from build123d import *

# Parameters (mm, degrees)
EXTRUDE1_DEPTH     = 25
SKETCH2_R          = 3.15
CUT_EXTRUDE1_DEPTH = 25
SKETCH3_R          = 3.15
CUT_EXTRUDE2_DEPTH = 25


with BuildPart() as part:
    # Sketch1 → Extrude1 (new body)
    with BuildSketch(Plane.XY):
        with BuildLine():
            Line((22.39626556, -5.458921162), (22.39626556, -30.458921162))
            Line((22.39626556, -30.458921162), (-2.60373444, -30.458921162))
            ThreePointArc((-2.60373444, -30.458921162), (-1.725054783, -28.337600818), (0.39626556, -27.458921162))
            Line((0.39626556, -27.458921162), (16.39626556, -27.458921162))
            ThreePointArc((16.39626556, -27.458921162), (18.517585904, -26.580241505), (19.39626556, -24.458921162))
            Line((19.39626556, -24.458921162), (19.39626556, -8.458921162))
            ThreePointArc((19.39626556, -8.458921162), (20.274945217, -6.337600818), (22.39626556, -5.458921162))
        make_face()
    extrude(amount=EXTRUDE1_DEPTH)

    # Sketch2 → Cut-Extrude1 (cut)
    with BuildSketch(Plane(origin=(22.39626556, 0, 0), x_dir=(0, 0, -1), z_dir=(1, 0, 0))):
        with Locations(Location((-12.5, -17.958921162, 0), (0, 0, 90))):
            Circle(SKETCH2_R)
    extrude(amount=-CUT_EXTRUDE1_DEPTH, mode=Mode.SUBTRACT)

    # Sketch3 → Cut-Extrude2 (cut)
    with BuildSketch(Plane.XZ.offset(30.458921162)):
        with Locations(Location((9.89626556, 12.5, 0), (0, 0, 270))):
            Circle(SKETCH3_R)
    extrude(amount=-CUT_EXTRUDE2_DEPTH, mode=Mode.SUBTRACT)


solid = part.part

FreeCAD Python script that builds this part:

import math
import FreeCAD as App
import Part
import Sketcher
from FreeCAD import Vector

doc = App.newDocument("Part")
params = doc.addObject("Spreadsheet::Sheet", "Params")
for row, (alias, value) in enumerate([
    ("sketch1_radius", "3 mm"),
    ("sketch1_width", "16 mm"),
    ("pad1_length", "25 mm"),
    ("sketch2_diameter", "6.3 mm"),
    ("pocket1_length", "25 mm"),
    ("sketch3_diameter", "6.3 mm"),
    ("pocket2_length", "25 mm"),
], start=1):
    params.set(f"A{row}", alias)
    params.set(f"B{row}", "=" + value)
    params.setAlias(f"B{row}", alias)

body = doc.addObject("PartDesign::Body", "Body")

# Sketch on XY plane
sketch1 = body.newObject("Sketcher::SketchObject", "Sketch")
sketch1.AttachmentSupport = (doc.getObject("XY_Plane"), [""])
sketch1.MapMode = "FlatFace"
sketch1.addGeometry([
    Part.LineSegment(Vector(22.396266, -30.458921, 0), Vector(22.396266, -5.458921, 0)),  # 0
    Part.ArcOfCircle(Part.Circle(Vector(22.396266, -8.458921, 0), Vector(0, 0, 1), 3), math.radians(90), math.radians(180)),  # 1
    Part.LineSegment(Vector(19.396266, -8.458921, 0), Vector(19.396266, -24.458921, 0)),  # 2
    Part.ArcOfCircle(Part.Circle(Vector(16.396266, -24.458921, 0), Vector(0, 0, 1), 3), math.radians(-90), math.radians(0)),  # 3
    Part.LineSegment(Vector(16.396266, -27.458921, 0), Vector(0.396266, -27.458921, 0)),  # 4
    Part.ArcOfCircle(Part.Circle(Vector(0.396266, -30.458921, 0), Vector(0, 0, 1), 3), math.radians(90), math.radians(180)),  # 5
    Part.LineSegment(Vector(-2.603734, -30.458921, 0), Vector(22.396266, -30.458921, 0)),  # 6
], False)
sketch1.addConstraint([
    Sketcher.Constraint("Coincident", 0, 2, 1, 1),
    Sketcher.Constraint("Tangent", 1, 2, 2, 1),
    Sketcher.Constraint("Tangent", 2, 2, 3, 2),
    Sketcher.Constraint("Tangent", 3, 1, 4, 1),
    Sketcher.Constraint("Tangent", 4, 2, 5, 1),
    Sketcher.Constraint("Coincident", 5, 2, 6, 1),
    Sketcher.Constraint("Coincident", 6, 2, 0, 1),
    Sketcher.Constraint("Vertical", 0),
    Sketcher.Constraint("Vertical", 2),
    Sketcher.Constraint("Horizontal", 4),
    Sketcher.Constraint("Horizontal", 6),
    Sketcher.Constraint("Equal", 1, 3),
    Sketcher.Constraint("Equal", 3, 5),
    Sketcher.Constraint("Vertical", 1, 3, 0, 2),
    Sketcher.Constraint("Equal", 6, 0),
    Sketcher.Constraint("Equal", 4, 2),
    Sketcher.Constraint("Radius", 1, 3.0),
    Sketcher.Constraint("DistanceX", 4, 2, 4, 1, 16.0),
    Sketcher.Constraint("DistanceY", 1, 3, -1, 1, 8.458921),
    Sketcher.Constraint("DistanceX", -1, 1, 1, 3, 22.396266),
])
sketch1.setExpression("Constraints[16]", "Params.sketch1_radius")
sketch1.setExpression("Constraints[17]", "Params.sketch1_width")
pad1 = body.newObject("PartDesign::Pad", "Pad")
pad1.Profile = sketch1
pad1.setExpression("Length", "Params.pad1_length")

# Sketch on YZ plane
sketch2 = body.newObject("Sketcher::SketchObject", "Sketch001")
sketch2.AttachmentSupport = (doc.getObject("YZ_Plane"), [""])
sketch2.MapMode = "FlatFace"
sketch2.AttachmentOffset = App.Placement(Vector(0, 0, 22.396266), App.Rotation())
sketch2.addGeometry(Part.Circle(Vector(-17.958921, 12.5, 0), Vector(0, 0, 1), 3.15), False)
sketch2.addConstraint([
    Sketcher.Constraint("Diameter", 0, 6.3),
    Sketcher.Constraint("DistanceY", -1, 1, 0, 3, 12.5),
    Sketcher.Constraint("DistanceX", 0, 3, -1, 1, 17.958921),
])
sketch2.setExpression("Constraints[0]", "Params.sketch2_diameter")
pocket1 = body.newObject("PartDesign::Pocket", "Pocket")
pocket1.Profile = sketch2
pocket1.setExpression("Length", "Params.pocket1_length")

# Sketch on XZ plane
sketch3 = body.newObject("Sketcher::SketchObject", "Sketch002")
sketch3.AttachmentSupport = (doc.getObject("XZ_Plane"), [""])
sketch3.MapMode = "FlatFace"
sketch3.AttachmentOffset = App.Placement(Vector(0, 0, 30.458921), App.Rotation())
sketch3.addGeometry(Part.Circle(Vector(9.896266, 12.5, 0), Vector(0, 0, 1), 3.15), False)
sketch3.addConstraint([
    Sketcher.Constraint("Diameter", 0, 6.3),
    Sketcher.Constraint("DistanceY", -1, 1, 0, 3, 12.5),
    Sketcher.Constraint("DistanceX", -1, 1, 0, 3, 9.896266),
])
sketch3.setExpression("Constraints[0]", "Params.sketch3_diameter")
pocket2 = body.newObject("PartDesign::Pocket", "Pocket001")
pocket2.Profile = sketch3
pocket2.setExpression("Length", "Params.pocket2_length")

doc.recompute()
